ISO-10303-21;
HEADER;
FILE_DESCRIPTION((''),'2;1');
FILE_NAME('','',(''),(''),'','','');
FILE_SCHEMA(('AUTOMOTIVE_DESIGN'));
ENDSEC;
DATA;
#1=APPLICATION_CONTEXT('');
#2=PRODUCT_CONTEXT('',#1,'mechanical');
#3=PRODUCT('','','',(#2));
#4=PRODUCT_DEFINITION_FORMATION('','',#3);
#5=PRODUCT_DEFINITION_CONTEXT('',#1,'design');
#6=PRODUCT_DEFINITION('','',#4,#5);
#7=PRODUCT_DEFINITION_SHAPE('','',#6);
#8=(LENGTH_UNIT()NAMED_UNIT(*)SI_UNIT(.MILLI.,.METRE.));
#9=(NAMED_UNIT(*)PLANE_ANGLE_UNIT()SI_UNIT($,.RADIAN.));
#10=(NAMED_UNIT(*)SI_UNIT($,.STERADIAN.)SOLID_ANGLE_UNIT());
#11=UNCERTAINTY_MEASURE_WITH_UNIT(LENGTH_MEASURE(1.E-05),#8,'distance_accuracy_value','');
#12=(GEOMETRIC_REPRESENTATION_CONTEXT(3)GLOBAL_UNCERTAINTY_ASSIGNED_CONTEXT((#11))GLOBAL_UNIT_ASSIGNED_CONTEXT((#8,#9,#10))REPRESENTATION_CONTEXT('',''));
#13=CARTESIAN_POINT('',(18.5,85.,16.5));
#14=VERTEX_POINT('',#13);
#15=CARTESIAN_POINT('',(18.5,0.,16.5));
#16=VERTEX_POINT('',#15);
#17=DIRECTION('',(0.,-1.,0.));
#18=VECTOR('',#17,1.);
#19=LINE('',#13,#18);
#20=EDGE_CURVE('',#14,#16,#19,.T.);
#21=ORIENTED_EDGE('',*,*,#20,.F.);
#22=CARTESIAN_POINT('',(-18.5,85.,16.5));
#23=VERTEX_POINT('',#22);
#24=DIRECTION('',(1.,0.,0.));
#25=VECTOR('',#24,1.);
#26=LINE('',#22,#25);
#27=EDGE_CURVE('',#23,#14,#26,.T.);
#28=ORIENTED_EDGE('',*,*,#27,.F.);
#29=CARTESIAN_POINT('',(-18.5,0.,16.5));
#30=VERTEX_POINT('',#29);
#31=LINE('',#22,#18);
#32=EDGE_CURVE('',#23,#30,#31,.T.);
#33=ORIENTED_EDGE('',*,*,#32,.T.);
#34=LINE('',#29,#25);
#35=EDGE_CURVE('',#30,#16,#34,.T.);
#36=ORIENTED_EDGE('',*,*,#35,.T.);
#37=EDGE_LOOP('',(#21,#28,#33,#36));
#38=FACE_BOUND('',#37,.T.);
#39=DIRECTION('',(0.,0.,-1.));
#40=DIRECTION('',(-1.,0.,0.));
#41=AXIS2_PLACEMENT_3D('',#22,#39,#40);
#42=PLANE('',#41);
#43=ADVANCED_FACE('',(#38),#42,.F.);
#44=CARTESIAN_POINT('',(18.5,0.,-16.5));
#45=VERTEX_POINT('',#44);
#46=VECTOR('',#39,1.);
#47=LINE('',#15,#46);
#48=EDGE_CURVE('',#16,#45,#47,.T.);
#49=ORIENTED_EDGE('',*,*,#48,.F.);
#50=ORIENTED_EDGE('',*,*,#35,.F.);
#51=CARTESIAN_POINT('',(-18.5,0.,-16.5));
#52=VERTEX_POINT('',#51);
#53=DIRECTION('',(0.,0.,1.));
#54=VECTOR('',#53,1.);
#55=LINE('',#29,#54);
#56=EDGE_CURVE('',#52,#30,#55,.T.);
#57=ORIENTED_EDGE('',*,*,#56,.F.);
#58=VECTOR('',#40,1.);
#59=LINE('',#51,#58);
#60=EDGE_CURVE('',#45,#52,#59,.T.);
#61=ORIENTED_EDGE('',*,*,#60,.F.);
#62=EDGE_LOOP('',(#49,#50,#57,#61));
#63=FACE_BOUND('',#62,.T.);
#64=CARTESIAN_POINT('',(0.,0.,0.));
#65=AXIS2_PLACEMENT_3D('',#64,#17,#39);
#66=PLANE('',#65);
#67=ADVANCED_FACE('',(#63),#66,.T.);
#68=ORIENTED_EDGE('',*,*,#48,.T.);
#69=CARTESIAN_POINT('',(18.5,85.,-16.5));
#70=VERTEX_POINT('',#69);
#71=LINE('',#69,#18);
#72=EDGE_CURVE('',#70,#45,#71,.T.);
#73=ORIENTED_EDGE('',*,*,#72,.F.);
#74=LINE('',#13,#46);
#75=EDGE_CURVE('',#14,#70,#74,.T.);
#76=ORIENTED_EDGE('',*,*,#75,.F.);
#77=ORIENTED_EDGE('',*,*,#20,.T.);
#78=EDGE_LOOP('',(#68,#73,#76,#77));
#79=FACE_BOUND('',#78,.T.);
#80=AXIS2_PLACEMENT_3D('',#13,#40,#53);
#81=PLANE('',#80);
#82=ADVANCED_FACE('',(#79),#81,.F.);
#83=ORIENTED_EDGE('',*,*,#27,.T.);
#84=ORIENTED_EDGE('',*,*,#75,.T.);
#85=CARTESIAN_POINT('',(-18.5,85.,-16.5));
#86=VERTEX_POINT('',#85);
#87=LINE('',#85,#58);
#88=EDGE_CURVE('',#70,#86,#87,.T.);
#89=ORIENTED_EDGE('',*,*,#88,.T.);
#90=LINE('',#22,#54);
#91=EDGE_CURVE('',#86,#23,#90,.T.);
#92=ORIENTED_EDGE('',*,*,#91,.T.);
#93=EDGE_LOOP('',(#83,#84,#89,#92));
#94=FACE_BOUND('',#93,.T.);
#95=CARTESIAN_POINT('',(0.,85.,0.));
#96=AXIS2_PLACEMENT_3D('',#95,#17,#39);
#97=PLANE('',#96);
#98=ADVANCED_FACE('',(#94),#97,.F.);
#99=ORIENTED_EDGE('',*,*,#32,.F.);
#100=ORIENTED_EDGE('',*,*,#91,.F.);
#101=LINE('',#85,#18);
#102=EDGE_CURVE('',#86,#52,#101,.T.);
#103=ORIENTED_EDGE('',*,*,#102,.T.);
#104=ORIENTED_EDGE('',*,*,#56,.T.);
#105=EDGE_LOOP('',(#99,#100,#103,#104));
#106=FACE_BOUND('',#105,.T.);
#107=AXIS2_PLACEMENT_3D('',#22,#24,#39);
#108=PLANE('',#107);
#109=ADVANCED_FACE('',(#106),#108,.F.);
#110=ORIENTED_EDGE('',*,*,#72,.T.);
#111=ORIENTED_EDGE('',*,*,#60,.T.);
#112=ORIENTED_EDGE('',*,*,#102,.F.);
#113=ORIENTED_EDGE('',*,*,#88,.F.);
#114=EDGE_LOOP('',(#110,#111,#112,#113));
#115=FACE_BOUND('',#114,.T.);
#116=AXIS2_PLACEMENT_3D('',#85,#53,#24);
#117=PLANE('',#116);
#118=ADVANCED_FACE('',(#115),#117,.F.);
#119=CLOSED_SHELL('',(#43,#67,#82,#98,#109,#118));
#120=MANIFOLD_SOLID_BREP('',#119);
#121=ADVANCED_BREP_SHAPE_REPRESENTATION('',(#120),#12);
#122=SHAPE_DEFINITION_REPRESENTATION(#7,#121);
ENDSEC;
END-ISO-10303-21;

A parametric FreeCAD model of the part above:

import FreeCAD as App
import Part
import Sketcher


def add_polygon(sketch, points):
    """Adds a closed chain of lines whose ends are joined by coincident constraints."""
    first, n = sketch.GeometryCount, len(points)
    for a, b in zip(points, points[1:] + points[:1]):
        sketch.addGeometry(Part.LineSegment(App.Vector(*a, 0), App.Vector(*b, 0)), False)
    for i in range(n):
        sketch.addConstraint(Sketcher.Constraint("Coincident", first + i, 2, first + (i + 1) % n, 1))

doc = App.newDocument("Part")
body = doc.addObject("PartDesign::Body", "Body")

sketch1 = body.newObject("Sketcher::SketchObject", "Sketch")
sketch1.AttachmentSupport = (doc.getObject("XZ_Plane"), [""])
sketch1.MapMode = "FlatFace"
add_polygon(sketch1, [(-18.5, -16.5), (-18.5, 16.5), (18.5, 16.5), (18.5, -16.5)])
sketch1.addConstraint([
    Sketcher.Constraint("Vertical", 0),
    Sketcher.Constraint("Horizontal", 1),
    Sketcher.Constraint("Vertical", 2),
    Sketcher.Constraint("Horizontal", 3),
    Sketcher.Constraint("Symmetric", 0, 2, 2, 2, -1, 1),
    Sketcher.Constraint("DistanceX", 1, 1, 1, 2, 37.0),
    Sketcher.Constraint("DistanceY", 0, 1, 0, 2, 33.0),
])
pad1 = body.newObject("PartDesign::Pad", "Pad")
pad1.Profile = sketch1
pad1.Length = 85
pad1.Reversed = True

doc.recompute()
